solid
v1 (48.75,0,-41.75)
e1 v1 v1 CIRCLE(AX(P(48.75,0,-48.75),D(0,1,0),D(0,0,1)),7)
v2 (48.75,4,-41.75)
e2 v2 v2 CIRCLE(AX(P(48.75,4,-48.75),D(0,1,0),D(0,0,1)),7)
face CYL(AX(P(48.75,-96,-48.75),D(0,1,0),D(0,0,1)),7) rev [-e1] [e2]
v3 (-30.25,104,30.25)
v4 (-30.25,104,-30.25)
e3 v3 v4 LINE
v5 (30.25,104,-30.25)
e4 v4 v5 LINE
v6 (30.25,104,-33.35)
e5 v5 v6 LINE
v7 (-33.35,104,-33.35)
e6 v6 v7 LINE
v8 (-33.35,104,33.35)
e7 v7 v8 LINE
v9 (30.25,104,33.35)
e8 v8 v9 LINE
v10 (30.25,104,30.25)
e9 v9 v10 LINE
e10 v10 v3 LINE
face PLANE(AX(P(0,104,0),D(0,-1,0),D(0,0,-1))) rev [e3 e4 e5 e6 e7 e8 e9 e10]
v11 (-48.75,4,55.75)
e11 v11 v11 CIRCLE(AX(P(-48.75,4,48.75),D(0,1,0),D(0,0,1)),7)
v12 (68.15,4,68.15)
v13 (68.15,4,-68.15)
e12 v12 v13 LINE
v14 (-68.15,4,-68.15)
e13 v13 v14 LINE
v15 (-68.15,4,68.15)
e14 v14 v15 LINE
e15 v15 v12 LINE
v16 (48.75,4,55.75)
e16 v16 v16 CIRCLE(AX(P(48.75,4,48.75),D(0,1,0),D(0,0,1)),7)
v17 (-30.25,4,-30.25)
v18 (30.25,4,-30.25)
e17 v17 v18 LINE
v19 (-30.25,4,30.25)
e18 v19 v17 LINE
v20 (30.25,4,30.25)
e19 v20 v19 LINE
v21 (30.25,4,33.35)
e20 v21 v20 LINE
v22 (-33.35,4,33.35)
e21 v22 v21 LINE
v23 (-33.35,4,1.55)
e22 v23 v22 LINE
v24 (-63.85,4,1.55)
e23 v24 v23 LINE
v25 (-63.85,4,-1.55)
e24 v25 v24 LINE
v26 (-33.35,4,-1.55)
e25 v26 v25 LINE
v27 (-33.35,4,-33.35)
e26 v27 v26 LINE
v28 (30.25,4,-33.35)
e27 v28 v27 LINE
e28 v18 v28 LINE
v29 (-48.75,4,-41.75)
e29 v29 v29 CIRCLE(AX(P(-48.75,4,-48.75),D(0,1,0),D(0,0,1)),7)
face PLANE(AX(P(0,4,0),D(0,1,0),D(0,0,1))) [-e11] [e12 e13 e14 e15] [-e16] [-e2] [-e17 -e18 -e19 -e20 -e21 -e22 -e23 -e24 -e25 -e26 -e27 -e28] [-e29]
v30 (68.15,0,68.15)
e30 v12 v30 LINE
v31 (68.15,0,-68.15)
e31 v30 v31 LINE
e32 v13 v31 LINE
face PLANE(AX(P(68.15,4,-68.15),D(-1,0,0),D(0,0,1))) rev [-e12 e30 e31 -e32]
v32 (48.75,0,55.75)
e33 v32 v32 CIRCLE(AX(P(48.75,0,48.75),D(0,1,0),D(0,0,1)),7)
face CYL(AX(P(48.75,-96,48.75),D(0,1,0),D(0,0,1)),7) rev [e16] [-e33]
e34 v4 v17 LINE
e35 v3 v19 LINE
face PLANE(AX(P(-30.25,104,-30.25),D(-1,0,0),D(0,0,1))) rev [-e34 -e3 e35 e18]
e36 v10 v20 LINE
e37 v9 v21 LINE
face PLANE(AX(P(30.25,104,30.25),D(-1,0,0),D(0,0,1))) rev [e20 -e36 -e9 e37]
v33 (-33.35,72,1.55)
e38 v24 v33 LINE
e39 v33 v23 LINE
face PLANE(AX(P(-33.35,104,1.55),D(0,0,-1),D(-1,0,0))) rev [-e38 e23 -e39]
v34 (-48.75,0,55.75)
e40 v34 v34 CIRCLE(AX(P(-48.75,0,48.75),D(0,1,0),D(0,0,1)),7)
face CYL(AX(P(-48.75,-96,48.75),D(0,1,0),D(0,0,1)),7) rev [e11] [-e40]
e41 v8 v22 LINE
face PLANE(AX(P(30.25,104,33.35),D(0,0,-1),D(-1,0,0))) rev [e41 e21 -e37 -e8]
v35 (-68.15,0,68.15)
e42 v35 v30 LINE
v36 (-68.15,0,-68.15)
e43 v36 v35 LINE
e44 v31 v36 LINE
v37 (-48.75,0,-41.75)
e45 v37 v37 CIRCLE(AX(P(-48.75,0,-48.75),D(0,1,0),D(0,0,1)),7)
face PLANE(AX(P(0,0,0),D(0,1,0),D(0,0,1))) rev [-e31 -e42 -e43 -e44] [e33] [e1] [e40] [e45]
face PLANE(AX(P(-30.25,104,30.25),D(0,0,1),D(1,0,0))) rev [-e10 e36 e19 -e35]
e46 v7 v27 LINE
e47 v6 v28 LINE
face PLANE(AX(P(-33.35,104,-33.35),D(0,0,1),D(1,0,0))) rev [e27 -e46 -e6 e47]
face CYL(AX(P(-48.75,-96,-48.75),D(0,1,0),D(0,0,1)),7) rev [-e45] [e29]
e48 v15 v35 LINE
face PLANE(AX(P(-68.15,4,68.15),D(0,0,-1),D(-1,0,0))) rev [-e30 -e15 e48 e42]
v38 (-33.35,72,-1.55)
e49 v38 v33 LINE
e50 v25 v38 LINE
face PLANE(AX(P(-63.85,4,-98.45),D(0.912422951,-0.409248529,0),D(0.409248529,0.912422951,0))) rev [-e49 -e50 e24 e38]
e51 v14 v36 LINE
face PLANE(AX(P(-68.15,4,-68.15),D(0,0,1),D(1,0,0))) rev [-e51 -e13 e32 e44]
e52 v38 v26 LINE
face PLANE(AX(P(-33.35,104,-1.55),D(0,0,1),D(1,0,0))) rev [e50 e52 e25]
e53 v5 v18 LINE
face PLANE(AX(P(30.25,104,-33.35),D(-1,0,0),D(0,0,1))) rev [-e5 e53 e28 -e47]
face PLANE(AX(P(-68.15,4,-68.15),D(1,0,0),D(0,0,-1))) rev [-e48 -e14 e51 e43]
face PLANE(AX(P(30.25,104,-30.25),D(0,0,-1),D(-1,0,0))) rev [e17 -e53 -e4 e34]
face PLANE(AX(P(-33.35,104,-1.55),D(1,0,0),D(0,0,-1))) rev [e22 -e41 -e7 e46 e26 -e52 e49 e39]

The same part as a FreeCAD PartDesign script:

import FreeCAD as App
import Part
import Sketcher

V = App.Vector
Q = App.Units.Quantity

doc = App.newDocument("Part")
body = doc.addObject("PartDesign::Body", "Body")

# Sketch on XZ plane
sketch1 = body.newObject("Sketcher::SketchObject", "Sketch")
sketch1.AttachmentSupport = (doc.getObject("XZ_Plane"), [""])
sketch1.MapMode = "FlatFace"
sketch1.addGeometry([
    Part.LineSegment(V(-68, -68, 0), V(-68, 68, 0)),
    Part.LineSegment(V(-68, 68, 0), V(68, 68, 0)),
    Part.LineSegment(V(68, 68, 0), V(68, -68, 0)),
    Part.LineSegment(V(68, -68, 0), V(-68, -68, 0)),
], False)
sketch1.addConstraint([
    Sketcher.Constraint("Coincident", 0, 2, 1, 1),
    Sketcher.Constraint("Coincident", 1, 2, 2, 1),
    Sketcher.Constraint("Coincident", 2, 2, 3, 1),
    Sketcher.Constraint("Coincident", 3, 2, 0, 1),
    Sketcher.Constraint("Vertical", 0),
    Sketcher.Constraint("Horizontal", 1),
    Sketcher.Constraint("Vertical", 2),
    Sketcher.Constraint("Horizontal", 3),
    Sketcher.Constraint("Symmetric", 0, 2, 2, 2, -1, 1),
    Sketcher.Constraint("Equal", 3, 0),
    Sketcher.Constraint("DistanceX", 1, 1, 1, 2, Q("136.3 mm")),
])
pad1 = body.newObject("PartDesign::Pad", "Pad")
pad1.Profile = sketch1
pad1.Length = 4
pad1.Reversed = True

# Sketch on XZ plane
sketch2 = body.newObject("Sketcher::SketchObject", "Sketch001")
sketch2.AttachmentSupport = (doc.getObject("XZ_Plane"), [""])
sketch2.MapMode = "FlatFace"
sketch2.AttachmentOffset = App.Placement(V(0, 0, -4), App.Rotation())
sketch2.addGeometry([
    Part.LineSegment(V(-30.2, -30.2, 0), V(30.2, -30.2, 0)),  # 0
    Part.LineSegment(V(30.2, -30.2, 0), V(30.2, -33.4, 0)),  # 1
    Part.LineSegment(V(30.2, -33.4, 0), V(-33.4, -33.4, 0)),  # 2
    Part.LineSegment(V(-33.4, -33.4, 0), V(-33.4, -1.6, 0)),  # 3
    Part.LineSegment(V(-33.4, -1.6, 0), V(-63.9, -1.6, 0)),  # 4
    Part.LineSegment(V(-63.9, -1.6, 0), V(-63.9, 1.6, 0)),  # 5
    Part.LineSegment(V(-63.9, 1.6, 0), V(-33.4, 1.6, 0)),  # 6
    Part.LineSegment(V(-33.4, 1.6, 0), V(-33.4, 33.4, 0)),  # 7
    Part.LineSegment(V(-33.4, 33.4, 0), V(30.2, 33.4, 0)),  # 8
    Part.LineSegment(V(30.2, 33.4, 0), V(30.2, 30.2, 0)),  # 9
    Part.LineSegment(V(30.2, 30.2, 0), V(-30.2, 30.2, 0)),  # 10
    Part.LineSegment(V(-30.2, 30.2, 0), V(-30.2, -30.2, 0)),  # 11
], False)
sketch2.addConstraint([
    Sketcher.Constraint("Coincident", 0, 2, 1, 1),
    Sketcher.Constraint("Coincident", 1, 2, 2, 1),
    Sketcher.Constraint("Coincident", 2, 2, 3, 1),
    Sketcher.Constraint("Coincident", 3, 2, 4, 1),
    Sketcher.Constraint("Coincident", 4, 2, 5, 1),
    Sketcher.Constraint("Coincident", 5, 2, 6, 1),
    Sketcher.Constraint("Coincident", 6, 2, 7, 1),
    Sketcher.Constraint("Coincident", 7, 2, 8, 1),
    Sketcher.Constraint("Coincident", 8, 2, 9, 1),
    Sketcher.Constraint("Coincident", 9, 2, 10, 1),
    Sketcher.Constraint("Coincident", 10, 2, 11, 1),
    Sketcher.Constraint("Coincident", 11, 2, 0, 1),
    Sketcher.Constraint("Horizontal", 0),
    Sketcher.Constraint("Vertical", 1),
    Sketcher.Constraint("Horizontal", 2),
    Sketcher.Constraint("Vertical", 3),
    Sketcher.Constraint("Horizontal", 4),
    Sketcher.Constraint("Vertical", 5),
    Sketcher.Constraint("Horizontal", 6),
    Sketcher.Constraint("Vertical", 7),
    Sketcher.Constraint("Horizontal", 8),
    Sketcher.Constraint("Vertical", 9),
    Sketcher.Constraint("Horizontal", 10),
    Sketcher.Constraint("Vertical", 11),
    Sketcher.Constraint("Symmetric", 0, 2, 10, 2, -1, 1),
    Sketcher.Constraint("Symmetric", 3, 2, 6, 2, -1),
    Sketcher.Constraint("Symmetric", 1, 2, 8, 2, -1),
    Sketcher.Constraint("Equal", 1, 5),
    Sketcher.Constraint("Equal", 10, 11),
    Sketcher.Constraint("DistanceX", 0, 1, 0, 2, Q("60.5 mm")),
    Sketcher.Constraint("DistanceX", 2, 2, 2, 1, Q("63.6 mm")),
    Sketcher.Constraint("DistanceX", 4, 2, 4, 1, Q("30.5 mm")),
    Sketcher.Constraint("DistanceY", 1, 2, 1, 1, Q("3.1 mm")),
])
pad2 = body.newObject("PartDesign::Pad", "Pad001")
pad2.Profile = sketch2
pad2.Length = 100
pad2.Reversed = True

# Sketch on XY plane
sketch3 = body.newObject("Sketcher::SketchObject", "Sketch002")
sketch3.AttachmentSupport = (doc.getObject("XY_Plane"), [""])
sketch3.MapMode = "FlatFace"
sketch3.AttachmentOffset = App.Placement(V(0, 0, 1.55), App.Rotation())
sketch3.addGeometry([
    Part.LineSegment(V(-64, 4, 0), V(-33, 72, 0)),
    Part.LineSegment(V(-33, 72, 0), V(-33, 104, 0)),
    Part.LineSegment(V(-33, 104, 0), V(-64, 104, 0)),
    Part.LineSegment(V(-64, 104, 0), V(-64, 4, 0)),
], False)
sketch3.addConstraint([
    Sketcher.Constraint("Coincident", 0, 2, 1, 1),
    Sketcher.Constraint("Coincident", 1, 2, 2, 1),
    Sketcher.Constraint("Coincident", 2, 2, 3, 1),
    Sketcher.Constraint("Coincident", 3, 2, 0, 1),
    Sketcher.Constraint("Vertical", 1),
    Sketcher.Constraint("Horizontal", 2),
    Sketcher.Constraint("Vertical", 3),
    Sketcher.Constraint("DistanceY", 1, 1, 1, 2, Q("32 mm")),
    Sketcher.Constraint("DistanceY", 3, 2, 3, 1, Q("100 mm")),
    Sketcher.Constraint("DistanceX", 2, 2, 2, 1, Q("30.5 mm")),
    Sketcher.Constraint("DistanceY", -1, 1, 0, 2, Q("72 mm")),
    Sketcher.Constraint("DistanceX", 0, 2, -1, 1, Q("33.35 mm")),
])
pocket1 = body.newObject("PartDesign::Pocket", "Pocket")
pocket1.Profile = sketch3
pocket1.Length = 100

# Sketch on XZ plane
sketch4 = body.newObject("Sketcher::SketchObject", "Sketch003")
sketch4.AttachmentSupport = (doc.getObject("XZ_Plane"), [""])
sketch4.MapMode = "FlatFace"
sketch4.AttachmentOffset = App.Placement(V(0, 0, -4), App.Rotation())
sketch4.addGeometry([
    Part.Circle(V(49, -49, 0), V(0, 0, 1), 7),
    Part.Circle(V(49, 49, 0), V(0, 0, 1), 7),
    Part.Circle(V(-49, 49, 0), V(0, 0, 1), 7),
    Part.Circle(V(-49, -49, 0), V(0, 0, 1), 7),
], False)
sketch4.addConstraint([
    Sketcher.Constraint("Equal", 0, 1),
    Sketcher.Constraint("Equal", 1, 2),
    Sketcher.Constraint("Equal", 2, 3),
    Sketcher.Constraint("Symmetric", 0, 3, 2, 3, -1, 1),
    Sketcher.Constraint("Symmetric", 1, 3, 3, 3, -1, 1),
    Sketcher.Constraint("Symmetric", 1, 3, 2, 3, -2),
    Sketcher.Constraint("Diameter", 0, Q("14 mm")),
    Sketcher.Constraint("DistanceY", 0, 3, 1, 3, Q("97.5 mm")),
    Sketcher.Constraint("DistanceX", 2, 3, 1, 3, Q("97.5 mm")),
])
pocket2 = body.newObject("PartDesign::Pocket", "Pocket001")
pocket2.Profile = sketch4
pocket2.Length = 100
pocket2.Reversed = True

doc.recompute()
